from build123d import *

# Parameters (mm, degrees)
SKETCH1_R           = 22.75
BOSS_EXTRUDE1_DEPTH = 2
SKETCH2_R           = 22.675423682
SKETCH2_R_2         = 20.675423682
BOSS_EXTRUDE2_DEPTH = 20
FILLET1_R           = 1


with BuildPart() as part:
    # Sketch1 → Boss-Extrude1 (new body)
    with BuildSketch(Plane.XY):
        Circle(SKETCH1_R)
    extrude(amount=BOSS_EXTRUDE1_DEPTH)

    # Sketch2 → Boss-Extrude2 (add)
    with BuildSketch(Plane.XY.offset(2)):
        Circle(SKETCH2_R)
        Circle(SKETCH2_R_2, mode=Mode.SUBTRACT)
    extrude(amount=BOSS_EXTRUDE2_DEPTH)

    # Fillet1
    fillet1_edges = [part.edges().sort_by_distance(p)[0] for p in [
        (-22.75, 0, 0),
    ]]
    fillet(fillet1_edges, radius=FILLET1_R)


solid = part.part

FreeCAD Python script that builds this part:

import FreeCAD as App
import Part
import Sketcher

V = App.Vector
Q = App.Units.Quantity


def edges_at(feature, points):
    """Names of the edges that pass closest to the given points."""
    edges = feature.Shape.Edges
    near = lambda p: min(range(len(edges)), key=lambda i: edges[i].distToShape(Part.Vertex(*p))[0])
    return sorted({f"Edge{near(p) + 1}" for p in points})

doc = App.newDocument("Part")
body = doc.addObject("PartDesign::Body", "Body")

sketch1 = body.newObject("Sketcher::SketchObject", "Sketch")
sketch1.AttachmentSupport = (doc.getObject("XY_Plane"), [""])
sketch1.MapMode = "FlatFace"
sketch1.addGeometry(Part.Circle(V(0, 0, 0), V(0, 0, 1), 23), False)
sketch1.addConstraint(Sketcher.Constraint("Coincident", 0, 3, -1, 1))
sketch1.addConstraint(Sketcher.Constraint("Diameter", 0, Q("45.5 mm")))
pad1 = body.newObject("PartDesign::Pad", "Pad")
pad1.Profile = sketch1
pad1.Length = 2

sketch2 = body.newObject("Sketcher::SketchObject", "Sketch001")
sketch2.AttachmentSupport = (doc.getObject("XY_Plane"), [""])
sketch2.MapMode = "FlatFace"
sketch2.AttachmentOffset = App.Placement(V(0, 0, 2), App.Rotation())
sketch2.addGeometry(Part.Circle(V(0, 0, 0), V(0, 0, 1), 23), False)
sketch2.addGeometry(Part.Circle(V(0, 0, 0), V(0, 0, 1), 21), False)
sketch2.addConstraint(Sketcher.Constraint("Coincident", 0, 3, -1, 1))
sketch2.addConstraint(Sketcher.Constraint("Coincident", 1, 3, -1, 1))
sketch2.addConstraint(Sketcher.Constraint("Diameter", 0, Q("45.350847 mm")))
sketch2.addConstraint(Sketcher.Constraint("Diameter", 1, Q("41.350847 mm")))
pad2 = body.newObject("PartDesign::Pad", "Pad001")
pad2.Profile = sketch2
pad2.Length = 20
doc.recompute()

fillet = body.newObject("PartDesign::Fillet", "Fillet")
fillet.Base = (pad2, edges_at(pad2, [(-22.75, 0, 0)]))
fillet.Radius = 1

doc.recompute()
